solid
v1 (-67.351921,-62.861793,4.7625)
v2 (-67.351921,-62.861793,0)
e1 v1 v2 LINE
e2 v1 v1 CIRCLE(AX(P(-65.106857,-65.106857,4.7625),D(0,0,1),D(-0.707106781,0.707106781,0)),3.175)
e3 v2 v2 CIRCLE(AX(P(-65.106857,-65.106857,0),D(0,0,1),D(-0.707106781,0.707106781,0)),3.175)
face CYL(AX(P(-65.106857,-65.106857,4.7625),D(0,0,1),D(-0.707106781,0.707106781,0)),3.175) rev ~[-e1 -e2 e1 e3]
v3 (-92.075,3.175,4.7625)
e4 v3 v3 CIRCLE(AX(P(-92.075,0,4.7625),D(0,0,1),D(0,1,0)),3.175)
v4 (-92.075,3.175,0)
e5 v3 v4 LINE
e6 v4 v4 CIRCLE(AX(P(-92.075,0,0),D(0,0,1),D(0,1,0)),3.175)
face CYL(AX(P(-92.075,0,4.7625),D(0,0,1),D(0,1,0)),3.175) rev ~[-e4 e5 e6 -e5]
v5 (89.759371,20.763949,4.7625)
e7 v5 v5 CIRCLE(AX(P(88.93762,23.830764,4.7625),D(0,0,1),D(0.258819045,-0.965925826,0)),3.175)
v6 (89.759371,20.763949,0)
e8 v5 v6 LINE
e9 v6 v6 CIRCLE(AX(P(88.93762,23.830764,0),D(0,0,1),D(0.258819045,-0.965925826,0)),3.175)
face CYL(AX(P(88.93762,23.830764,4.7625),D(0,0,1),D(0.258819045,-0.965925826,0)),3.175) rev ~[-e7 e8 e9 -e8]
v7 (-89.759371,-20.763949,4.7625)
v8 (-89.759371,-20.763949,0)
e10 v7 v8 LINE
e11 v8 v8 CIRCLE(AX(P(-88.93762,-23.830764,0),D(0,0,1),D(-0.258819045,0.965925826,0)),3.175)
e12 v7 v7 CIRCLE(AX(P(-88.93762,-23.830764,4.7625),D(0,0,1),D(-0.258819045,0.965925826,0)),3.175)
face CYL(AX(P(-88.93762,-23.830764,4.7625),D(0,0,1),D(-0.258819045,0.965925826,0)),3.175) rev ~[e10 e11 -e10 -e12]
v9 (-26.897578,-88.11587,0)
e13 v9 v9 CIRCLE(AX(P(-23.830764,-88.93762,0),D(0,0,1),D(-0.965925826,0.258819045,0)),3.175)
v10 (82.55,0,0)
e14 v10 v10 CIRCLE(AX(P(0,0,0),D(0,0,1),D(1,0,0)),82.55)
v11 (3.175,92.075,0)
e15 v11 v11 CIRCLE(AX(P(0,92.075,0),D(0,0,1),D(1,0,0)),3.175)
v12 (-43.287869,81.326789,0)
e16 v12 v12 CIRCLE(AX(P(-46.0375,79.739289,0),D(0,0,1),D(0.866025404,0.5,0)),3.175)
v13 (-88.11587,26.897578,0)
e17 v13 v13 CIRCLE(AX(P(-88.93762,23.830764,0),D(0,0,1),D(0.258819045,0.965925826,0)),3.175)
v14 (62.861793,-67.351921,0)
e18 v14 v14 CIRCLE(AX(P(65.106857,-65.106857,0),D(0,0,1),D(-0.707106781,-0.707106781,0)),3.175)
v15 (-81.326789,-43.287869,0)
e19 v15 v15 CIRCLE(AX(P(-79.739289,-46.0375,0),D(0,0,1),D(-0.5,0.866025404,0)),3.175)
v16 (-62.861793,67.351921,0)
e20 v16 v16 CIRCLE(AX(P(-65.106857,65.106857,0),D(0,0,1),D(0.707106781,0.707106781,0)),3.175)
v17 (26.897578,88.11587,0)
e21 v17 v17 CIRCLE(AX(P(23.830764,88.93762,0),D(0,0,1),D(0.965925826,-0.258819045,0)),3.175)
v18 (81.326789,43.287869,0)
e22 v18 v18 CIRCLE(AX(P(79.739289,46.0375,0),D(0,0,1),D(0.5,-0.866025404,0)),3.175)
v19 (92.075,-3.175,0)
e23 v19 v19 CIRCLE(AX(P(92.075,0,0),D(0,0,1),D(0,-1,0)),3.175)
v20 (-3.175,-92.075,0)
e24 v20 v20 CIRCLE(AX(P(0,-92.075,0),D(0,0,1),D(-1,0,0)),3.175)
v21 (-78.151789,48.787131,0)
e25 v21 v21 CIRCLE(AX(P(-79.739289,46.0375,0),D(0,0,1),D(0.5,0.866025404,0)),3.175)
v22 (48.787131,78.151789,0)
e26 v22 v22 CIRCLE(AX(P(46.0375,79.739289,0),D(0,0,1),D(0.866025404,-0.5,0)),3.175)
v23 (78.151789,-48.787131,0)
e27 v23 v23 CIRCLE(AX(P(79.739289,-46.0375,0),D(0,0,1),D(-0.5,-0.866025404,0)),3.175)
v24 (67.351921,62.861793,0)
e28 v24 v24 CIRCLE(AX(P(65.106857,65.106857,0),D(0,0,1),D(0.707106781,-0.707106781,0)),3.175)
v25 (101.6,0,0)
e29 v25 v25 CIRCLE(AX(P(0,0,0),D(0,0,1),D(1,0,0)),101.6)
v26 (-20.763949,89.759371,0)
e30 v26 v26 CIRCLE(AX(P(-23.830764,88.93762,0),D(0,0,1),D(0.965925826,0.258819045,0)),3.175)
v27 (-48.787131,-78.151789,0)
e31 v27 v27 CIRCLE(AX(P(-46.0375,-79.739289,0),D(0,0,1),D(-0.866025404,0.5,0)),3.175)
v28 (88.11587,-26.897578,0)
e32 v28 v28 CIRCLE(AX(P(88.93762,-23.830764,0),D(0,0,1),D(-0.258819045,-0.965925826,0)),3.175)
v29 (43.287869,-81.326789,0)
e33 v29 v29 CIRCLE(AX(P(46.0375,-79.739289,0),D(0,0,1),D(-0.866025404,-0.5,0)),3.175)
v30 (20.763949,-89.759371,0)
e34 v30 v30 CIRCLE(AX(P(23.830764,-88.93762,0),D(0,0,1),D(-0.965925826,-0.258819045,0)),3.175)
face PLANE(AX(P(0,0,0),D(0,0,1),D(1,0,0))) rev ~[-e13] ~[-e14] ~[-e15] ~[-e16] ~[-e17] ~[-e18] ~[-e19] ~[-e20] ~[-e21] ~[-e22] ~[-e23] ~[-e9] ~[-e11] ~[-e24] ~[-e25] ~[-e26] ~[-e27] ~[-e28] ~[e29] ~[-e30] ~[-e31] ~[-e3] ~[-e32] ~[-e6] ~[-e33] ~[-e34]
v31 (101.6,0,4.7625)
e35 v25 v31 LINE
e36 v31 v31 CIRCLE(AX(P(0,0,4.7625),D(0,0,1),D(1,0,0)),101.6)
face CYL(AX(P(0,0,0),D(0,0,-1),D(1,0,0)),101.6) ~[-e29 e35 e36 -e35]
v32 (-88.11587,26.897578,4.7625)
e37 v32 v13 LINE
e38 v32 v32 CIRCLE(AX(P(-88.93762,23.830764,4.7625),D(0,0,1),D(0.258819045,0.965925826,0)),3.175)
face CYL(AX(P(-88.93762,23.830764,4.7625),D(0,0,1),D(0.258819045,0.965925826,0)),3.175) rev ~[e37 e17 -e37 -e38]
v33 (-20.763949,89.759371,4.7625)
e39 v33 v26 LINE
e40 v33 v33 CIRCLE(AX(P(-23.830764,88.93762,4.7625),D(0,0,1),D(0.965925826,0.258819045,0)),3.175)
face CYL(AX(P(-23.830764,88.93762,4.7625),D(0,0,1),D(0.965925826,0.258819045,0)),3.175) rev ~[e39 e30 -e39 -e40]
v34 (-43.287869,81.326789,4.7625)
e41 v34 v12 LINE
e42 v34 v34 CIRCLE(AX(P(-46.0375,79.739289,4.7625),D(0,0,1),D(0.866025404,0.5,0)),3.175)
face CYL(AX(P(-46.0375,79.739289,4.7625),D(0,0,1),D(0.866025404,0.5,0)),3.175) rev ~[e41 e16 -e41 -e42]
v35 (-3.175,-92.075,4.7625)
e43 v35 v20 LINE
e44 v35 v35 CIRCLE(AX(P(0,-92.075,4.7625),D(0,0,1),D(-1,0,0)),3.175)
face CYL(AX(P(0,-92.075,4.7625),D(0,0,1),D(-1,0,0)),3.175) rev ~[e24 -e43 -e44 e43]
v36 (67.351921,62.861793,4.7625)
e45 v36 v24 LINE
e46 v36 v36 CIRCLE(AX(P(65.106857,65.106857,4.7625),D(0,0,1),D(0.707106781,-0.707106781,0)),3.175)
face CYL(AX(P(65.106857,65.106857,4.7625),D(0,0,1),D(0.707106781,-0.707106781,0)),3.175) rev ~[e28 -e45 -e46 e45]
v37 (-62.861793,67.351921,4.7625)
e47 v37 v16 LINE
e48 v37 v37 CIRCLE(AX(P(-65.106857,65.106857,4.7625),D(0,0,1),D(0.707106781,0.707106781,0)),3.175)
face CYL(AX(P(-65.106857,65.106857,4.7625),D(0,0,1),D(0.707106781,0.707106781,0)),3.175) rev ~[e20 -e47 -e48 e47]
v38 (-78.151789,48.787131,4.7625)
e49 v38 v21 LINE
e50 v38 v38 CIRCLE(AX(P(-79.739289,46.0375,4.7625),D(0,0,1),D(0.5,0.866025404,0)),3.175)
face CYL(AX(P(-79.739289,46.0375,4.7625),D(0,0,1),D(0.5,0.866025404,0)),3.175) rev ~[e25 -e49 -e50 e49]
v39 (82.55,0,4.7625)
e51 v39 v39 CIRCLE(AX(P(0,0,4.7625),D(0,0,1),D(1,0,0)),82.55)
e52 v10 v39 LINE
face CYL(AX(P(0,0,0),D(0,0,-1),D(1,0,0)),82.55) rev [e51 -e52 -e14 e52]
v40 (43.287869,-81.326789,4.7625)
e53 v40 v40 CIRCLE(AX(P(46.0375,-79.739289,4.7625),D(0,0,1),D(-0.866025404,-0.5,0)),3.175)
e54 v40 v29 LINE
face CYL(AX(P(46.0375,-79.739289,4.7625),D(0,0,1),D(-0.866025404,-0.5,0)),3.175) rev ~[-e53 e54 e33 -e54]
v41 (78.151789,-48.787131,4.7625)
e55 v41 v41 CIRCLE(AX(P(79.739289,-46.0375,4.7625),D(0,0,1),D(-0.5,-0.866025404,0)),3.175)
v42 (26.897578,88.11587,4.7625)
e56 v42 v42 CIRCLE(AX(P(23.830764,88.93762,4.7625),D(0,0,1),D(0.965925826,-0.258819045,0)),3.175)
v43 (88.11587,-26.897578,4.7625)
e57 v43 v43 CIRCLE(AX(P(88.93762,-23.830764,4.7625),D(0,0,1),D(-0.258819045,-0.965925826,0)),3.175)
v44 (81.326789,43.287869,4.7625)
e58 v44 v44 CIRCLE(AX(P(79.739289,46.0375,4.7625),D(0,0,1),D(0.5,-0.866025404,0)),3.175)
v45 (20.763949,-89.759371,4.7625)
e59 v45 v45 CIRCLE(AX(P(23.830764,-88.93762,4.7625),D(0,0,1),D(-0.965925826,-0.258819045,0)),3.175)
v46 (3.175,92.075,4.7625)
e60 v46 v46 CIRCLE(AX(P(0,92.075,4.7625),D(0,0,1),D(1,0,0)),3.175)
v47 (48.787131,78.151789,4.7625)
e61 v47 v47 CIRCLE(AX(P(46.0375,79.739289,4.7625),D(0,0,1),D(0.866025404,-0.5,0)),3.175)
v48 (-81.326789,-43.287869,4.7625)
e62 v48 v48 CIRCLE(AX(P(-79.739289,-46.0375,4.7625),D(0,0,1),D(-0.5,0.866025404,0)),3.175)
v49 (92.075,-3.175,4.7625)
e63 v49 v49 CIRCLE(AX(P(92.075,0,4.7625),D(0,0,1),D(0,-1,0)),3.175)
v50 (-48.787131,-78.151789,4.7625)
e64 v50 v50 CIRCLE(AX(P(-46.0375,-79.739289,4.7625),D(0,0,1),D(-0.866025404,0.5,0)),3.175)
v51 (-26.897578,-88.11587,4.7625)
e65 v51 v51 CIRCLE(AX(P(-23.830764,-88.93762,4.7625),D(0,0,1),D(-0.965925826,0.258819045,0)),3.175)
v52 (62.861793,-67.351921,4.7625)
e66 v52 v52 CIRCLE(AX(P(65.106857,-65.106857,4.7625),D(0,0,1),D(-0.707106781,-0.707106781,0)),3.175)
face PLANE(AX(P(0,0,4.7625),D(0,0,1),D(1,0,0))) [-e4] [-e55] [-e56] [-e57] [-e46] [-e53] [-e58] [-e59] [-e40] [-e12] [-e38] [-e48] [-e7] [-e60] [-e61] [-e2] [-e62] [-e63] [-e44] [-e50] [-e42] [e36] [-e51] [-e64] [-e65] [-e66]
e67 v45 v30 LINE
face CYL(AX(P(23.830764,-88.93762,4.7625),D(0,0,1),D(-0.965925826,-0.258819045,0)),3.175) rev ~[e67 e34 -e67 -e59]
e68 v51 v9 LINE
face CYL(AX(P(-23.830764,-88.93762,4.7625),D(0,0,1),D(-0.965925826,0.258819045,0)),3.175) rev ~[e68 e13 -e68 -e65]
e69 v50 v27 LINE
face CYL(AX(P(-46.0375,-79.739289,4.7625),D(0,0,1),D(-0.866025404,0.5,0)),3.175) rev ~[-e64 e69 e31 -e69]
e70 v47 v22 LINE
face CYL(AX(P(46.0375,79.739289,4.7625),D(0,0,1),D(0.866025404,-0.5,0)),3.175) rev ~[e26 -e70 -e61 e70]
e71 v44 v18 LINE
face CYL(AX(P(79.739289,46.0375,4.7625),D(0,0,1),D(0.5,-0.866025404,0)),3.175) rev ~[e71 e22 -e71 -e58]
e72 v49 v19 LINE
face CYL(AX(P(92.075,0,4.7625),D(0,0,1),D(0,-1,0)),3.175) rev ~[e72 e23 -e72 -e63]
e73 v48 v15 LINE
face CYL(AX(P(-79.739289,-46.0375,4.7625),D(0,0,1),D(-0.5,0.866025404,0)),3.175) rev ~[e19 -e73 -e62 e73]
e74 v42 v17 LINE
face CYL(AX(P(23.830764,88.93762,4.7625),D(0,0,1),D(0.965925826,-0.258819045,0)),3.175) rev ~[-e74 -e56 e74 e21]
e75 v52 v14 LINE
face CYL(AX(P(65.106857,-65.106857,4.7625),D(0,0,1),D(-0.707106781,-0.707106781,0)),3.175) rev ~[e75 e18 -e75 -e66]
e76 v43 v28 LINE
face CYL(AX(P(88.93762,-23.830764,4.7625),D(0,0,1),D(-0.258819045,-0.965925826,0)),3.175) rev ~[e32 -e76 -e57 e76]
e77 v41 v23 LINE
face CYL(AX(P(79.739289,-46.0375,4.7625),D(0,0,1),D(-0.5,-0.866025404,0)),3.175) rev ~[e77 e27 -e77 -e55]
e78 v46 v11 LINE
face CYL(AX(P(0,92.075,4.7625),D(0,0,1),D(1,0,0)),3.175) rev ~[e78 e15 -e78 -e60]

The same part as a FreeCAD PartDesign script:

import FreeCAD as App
import Part
import Sketcher

V = App.Vector
Q = App.Units.Quantity

doc = App.newDocument("Part")
body = doc.addObject("PartDesign::Body", "Body")

sketch1 = body.newObject("Sketcher::SketchObject", "Sketch")
sketch1.AttachmentSupport = (doc.getObject("XY_Plane"), [""])
sketch1.MapMode = "FlatFace"
sketch1.addGeometry([
    Part.Circle(V(0, 0, 0), V(0, 0, 1), 102),
    Part.Circle(V(0, 0, 0), V(0, 0, 1), 83),
], False)
sketch1.addConstraint([
    Sketcher.Constraint("Coincident", 0, 3, -1, 1),
    Sketcher.Constraint("Coincident", 1, 3, -1, 1),
    Sketcher.Constraint("Diameter", 0, Q("8 in")),
    Sketcher.Constraint("Diameter", 1, Q("6.5 in")),
])
pad1 = body.newObject("PartDesign::Pad", "Pad")
pad1.Profile = sketch1
pad1.Length = Q("0.1875 in")

sketch2 = body.newObject("Sketcher::SketchObject", "Sketch001")
sketch2.AttachmentSupport = (doc.getObject("XY_Plane"), [""])
sketch2.MapMode = "FlatFace"
sketch2.AttachmentOffset = App.Placement(V(0, 0, 0.1875 * 25.4), App.Rotation())
sketch2.addGeometry(Part.Circle(V(0, 92.1, 0), V(0, 0, 1), 3.2), False)
sketch2.addConstraint([
    Sketcher.Constraint("PointOnObject", 0, 3, -2),
    Sketcher.Constraint("Diameter", 0, Q("0.25 in")),
    Sketcher.Constraint("DistanceY", -1, 1, 0, 3, Q("3.625 in")),
])
pocket1 = body.newObject("PartDesign::Pocket", "Pocket")
pocket1.Profile = sketch2
pocket1.Type = "ThroughAll"
doc.recompute()

polarpattern = body.newObject("PartDesign::PolarPattern", "PolarPattern")
polarpattern.Originals = [pocket1]
polarpattern.Axis = (doc.getObject("Z_Axis"), [""])
polarpattern.Angle = 360
polarpattern.Occurrences = 24
body.Tip = polarpattern

doc.recompute()
